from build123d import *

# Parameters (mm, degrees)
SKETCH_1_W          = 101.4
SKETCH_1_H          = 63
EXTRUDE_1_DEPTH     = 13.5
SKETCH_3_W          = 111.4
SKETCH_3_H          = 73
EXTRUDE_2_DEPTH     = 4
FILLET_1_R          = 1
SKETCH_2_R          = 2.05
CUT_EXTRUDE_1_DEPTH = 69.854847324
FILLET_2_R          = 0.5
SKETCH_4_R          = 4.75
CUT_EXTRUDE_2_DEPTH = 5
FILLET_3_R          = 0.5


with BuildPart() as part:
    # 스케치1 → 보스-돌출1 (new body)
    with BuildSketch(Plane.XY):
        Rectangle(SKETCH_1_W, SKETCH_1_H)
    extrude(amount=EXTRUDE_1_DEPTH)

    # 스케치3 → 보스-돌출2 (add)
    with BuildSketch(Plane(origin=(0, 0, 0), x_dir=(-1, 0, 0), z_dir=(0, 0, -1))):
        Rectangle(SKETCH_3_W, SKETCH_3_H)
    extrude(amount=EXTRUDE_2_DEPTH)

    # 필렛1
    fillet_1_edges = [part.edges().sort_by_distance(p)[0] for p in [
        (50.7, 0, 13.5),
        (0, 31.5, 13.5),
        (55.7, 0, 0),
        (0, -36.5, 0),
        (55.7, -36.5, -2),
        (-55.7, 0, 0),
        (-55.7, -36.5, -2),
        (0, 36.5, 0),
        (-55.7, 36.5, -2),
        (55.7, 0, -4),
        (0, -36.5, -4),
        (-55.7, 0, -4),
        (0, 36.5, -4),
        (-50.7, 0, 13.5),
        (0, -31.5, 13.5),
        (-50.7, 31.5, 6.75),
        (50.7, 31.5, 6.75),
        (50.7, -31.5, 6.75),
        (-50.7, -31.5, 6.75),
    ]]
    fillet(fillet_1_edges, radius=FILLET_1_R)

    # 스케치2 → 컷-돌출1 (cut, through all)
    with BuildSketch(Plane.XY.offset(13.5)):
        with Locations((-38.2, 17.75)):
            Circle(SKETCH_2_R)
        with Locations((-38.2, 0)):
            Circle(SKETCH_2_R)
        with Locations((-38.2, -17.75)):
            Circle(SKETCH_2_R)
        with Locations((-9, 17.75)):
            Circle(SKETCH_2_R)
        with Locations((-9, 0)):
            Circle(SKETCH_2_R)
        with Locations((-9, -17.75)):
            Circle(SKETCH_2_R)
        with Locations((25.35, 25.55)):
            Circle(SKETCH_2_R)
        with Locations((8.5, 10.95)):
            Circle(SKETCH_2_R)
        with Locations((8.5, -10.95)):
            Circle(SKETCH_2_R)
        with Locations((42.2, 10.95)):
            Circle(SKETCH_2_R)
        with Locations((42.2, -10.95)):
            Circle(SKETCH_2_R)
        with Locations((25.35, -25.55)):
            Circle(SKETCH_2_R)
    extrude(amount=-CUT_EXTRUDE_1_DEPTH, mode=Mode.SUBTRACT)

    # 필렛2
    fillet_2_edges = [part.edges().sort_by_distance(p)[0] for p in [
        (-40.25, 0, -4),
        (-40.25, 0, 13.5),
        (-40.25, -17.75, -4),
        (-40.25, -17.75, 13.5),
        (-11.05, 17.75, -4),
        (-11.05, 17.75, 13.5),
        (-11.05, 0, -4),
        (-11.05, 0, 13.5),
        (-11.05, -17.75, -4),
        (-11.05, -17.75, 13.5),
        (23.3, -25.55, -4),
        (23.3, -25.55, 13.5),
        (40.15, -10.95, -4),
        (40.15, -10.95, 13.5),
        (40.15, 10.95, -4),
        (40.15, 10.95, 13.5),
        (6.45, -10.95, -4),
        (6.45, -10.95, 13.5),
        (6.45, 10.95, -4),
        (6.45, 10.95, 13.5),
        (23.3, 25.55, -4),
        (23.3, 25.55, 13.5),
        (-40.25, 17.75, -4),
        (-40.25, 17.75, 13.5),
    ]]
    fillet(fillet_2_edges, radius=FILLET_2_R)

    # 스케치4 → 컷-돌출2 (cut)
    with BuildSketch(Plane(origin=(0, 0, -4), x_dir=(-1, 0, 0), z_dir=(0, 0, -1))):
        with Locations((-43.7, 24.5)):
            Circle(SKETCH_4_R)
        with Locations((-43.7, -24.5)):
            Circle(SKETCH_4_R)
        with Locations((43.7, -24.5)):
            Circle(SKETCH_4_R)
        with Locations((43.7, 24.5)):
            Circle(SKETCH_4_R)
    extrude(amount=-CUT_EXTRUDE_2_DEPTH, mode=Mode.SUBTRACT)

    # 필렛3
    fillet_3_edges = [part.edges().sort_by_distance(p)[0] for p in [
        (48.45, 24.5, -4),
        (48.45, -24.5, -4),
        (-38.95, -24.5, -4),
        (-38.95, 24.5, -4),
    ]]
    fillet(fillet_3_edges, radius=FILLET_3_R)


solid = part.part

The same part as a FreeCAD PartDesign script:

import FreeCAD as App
import Part
import Sketcher
from FreeCAD import Vector


def edges_at(feature, points):
    """Names of the edges that pass closest to the given points."""
    edges = feature.Shape.Edges
    near = lambda p: min(range(len(edges)), key=lambda i: edges[i].distToShape(Part.Vertex(*p))[0])
    return sorted({f"Edge{near(p) + 1}" for p in points})

doc = App.newDocument("Part")
params = doc.addObject("Spreadsheet::Sheet", "Params")
for row, (alias, value) in enumerate([
    ("sketch1_height", "63 mm"),
    ("sketch1_width", "101.4 mm"),
    ("pad1_length", "13.5 mm"),
    ("sketch2_height", "73 mm"),
    ("sketch2_width", "111.4 mm"),
    ("pad2_length", "4 mm"),
    ("fillet_radius", "1 mm"),
    ("sketch3_diameter", "4.1 mm"),
    ("fillet2_radius", "0.5 mm"),
    ("sketch4_diameter", "9.5 mm"),
    ("pocket2_length", "5 mm"),
    ("fillet3_radius", "0.5 mm"),
], start=1):
    params.set(f"A{row}", alias)
    params.set(f"B{row}", "=" + value)
    params.setAlias(f"B{row}", alias)

body = doc.addObject("PartDesign::Body", "Body")

sketch1 = body.newObject("Sketcher::SketchObject", "Sketch")
sketch1.AttachmentSupport = (doc.getObject("XY_Plane"), [""])
sketch1.MapMode = "FlatFace"
sketch1.addGeometry([
    Part.LineSegment(Vector(-50.7, 31.5, 0), Vector(-50.7, -31.5, 0)),
    Part.LineSegment(Vector(-50.7, -31.5, 0), Vector(50.7, -31.5, 0)),
    Part.LineSegment(Vector(50.7, -31.5, 0), Vector(50.7, 31.5, 0)),
    Part.LineSegment(Vector(50.7, 31.5, 0), Vector(-50.7, 31.5, 0)),
], False)
sketch1.addConstraint([
    Sketcher.Constraint("Coincident", 0, 2, 1, 1),
    Sketcher.Constraint("Coincident", 1, 2, 2, 1),
    Sketcher.Constraint("Coincident", 2, 2, 3, 1),
    Sketcher.Constraint("Coincident", 3, 2, 0, 1),
    Sketcher.Constraint("Vertical", 0),
    Sketcher.Constraint("Horizontal", 1),
    Sketcher.Constraint("Vertical", 2),
    Sketcher.Constraint("Horizontal", 3),
    Sketcher.Constraint("Symmetric", 0, 2, 2, 2, -1, 1),
    Sketcher.Constraint("DistanceY", 0, 2, 0, 1, 63.0),
    Sketcher.Constraint("DistanceX", 1, 1, 1, 2, 101.4),
])
sketch1.setExpression("Constraints[9]", "Params.sketch1_height")
sketch1.setExpression("Constraints[10]", "Params.sketch1_width")
pad1 = body.newObject("PartDesign::Pad", "Pad")
pad1.Profile = sketch1
pad1.setExpression("Length", "Params.pad1_length")

sketch2 = body.newObject("Sketcher::SketchObject", "Sketch001")
sketch2.AttachmentSupport = (doc.getObject("XY_Plane"), [""])
sketch2.MapMode = "FlatFace"
sketch2.addGeometry([
    Part.LineSegment(Vector(55.7, 36.5, 0), Vector(55.7, -36.5, 0)),
    Part.LineSegment(Vector(55.7, -36.5, 0), Vector(-55.7, -36.5, 0)),
    Part.LineSegment(Vector(-55.7, -36.5, 0), Vector(-55.7, 36.5, 0)),
    Part.LineSegment(Vector(-55.7, 36.5, 0), Vector(55.7, 36.5, 0)),
], False)
sketch2.addConstraint([
    Sketcher.Constraint("Coincident", 0, 2, 1, 1),
    Sketcher.Constraint("Coincident", 1, 2, 2, 1),
    Sketcher.Constraint("Coincident", 2, 2, 3, 1),
    Sketcher.Constraint("Coincident", 3, 2, 0, 1),
    Sketcher.Constraint("Vertical", 0),
    Sketcher.Constraint("Horizontal", 1),
    Sketcher.Constraint("Vertical", 2),
    Sketcher.Constraint("Horizontal", 3),
    Sketcher.Constraint("Symmetric", 0, 2, 2, 2, -1, 1),
    Sketcher.Constraint("DistanceY", 0, 2, 0, 1, 73.0),
    Sketcher.Constraint("DistanceX", 1, 2, 1, 1, 111.4),
])
sketch2.setExpression("Constraints[9]", "Params.sketch2_height")
sketch2.setExpression("Constraints[10]", "Params.sketch2_width")
pad2 = body.newObject("PartDesign::Pad", "Pad001")
pad2.Profile = sketch2
pad2.setExpression("Length", "Params.pad2_length")
pad2.Reversed = True
doc.recompute()

fillet = body.newObject("PartDesign::Fillet", "Fillet")
fillet.Base = (pad2, edges_at(pad2, [
    (50.7, 0, 13.5),
    (0, 31.5, 13.5),
    (55.7, 0, 0),
    (0, -36.5, 0),
    (55.7, -36.5, -2),
    (-55.7, 0, 0),
    (-55.7, -36.5, -2),
    (0, 36.5, 0),
    (-55.7, 36.5, -2),
    (55.7, 0, -4),
    (0, -36.5, -4),
    (-55.7, 0, -4),
    (0, 36.5, -4),
    (-50.7, 0, 13.5),
    (0, -31.5, 13.5),
    (-50.7, 31.5, 6.75),
    (50.7, 31.5, 6.75),
    (50.7, -31.5, 6.75),
    (-50.7, -31.5, 6.75),
]))
fillet.setExpression("Radius", "Params.fillet_radius")

sketch3 = body.newObject("Sketcher::SketchObject", "Sketch002")
sketch3.AttachmentSupport = (doc.getObject("XY_Plane"), [""])
sketch3.MapMode = "FlatFace"
sketch3.AttachmentOffset = App.Placement(Vector(0, 0, 13.5), App.Rotation())
sketch3.addGeometry([
    Part.Circle(Vector(-38.2, 17.75, 0), Vector(0, 0, 1), 2.05),
    Part.Circle(Vector(-38.2, 0, 0), Vector(0, 0, 1), 2.05),
    Part.Circle(Vector(-38.2, -17.75, 0), Vector(0, 0, 1), 2.05),
    Part.Circle(Vector(-9, 17.75, 0), Vector(0, 0, 1), 2.05),
    Part.Circle(Vector(-9, 0, 0), Vector(0, 0, 1), 2.05),
    Part.Circle(Vector(-9, -17.75, 0), Vector(0, 0, 1), 2.05),
    Part.Circle(Vector(25.35, 25.55, 0), Vector(0, 0, 1), 2.05),
    Part.Circle(Vector(8.5, 10.95, 0), Vector(0, 0, 1), 2.05),
    Part.Circle(Vector(8.5, -10.95, 0), Vector(0, 0, 1), 2.05),
    Part.Circle(Vector(42.2, 10.95, 0), Vector(0, 0, 1), 2.05),
    Part.Circle(Vector(42.2, -10.95, 0), Vector(0, 0, 1), 2.05),
    Part.Circle(Vector(25.35, -25.55, 0), Vector(0, 0, 1), 2.05),
], False)
sketch3.addConstraint([
    Sketcher.Constraint("Equal", 0, 1),
    Sketcher.Constraint("Equal", 1, 2),
    Sketcher.Constraint("Equal", 2, 3),
    Sketcher.Constraint("Equal", 3, 4),
    Sketcher.Constraint("Equal", 4, 5),
    Sketcher.Constraint("Equal", 5, 6),
    Sketcher.Constraint("Equal", 6, 7),
    Sketcher.Constraint("Equal", 7, 8),
    Sketcher.Constraint("Equal", 8, 9),
    Sketcher.Constraint("Equal", 9, 10),
    Sketcher.Constraint("Equal", 10, 11),
    Sketcher.Constraint("Symmetric", 0, 3, 2, 3, -1),
    Sketcher.Constraint("Symmetric", 3, 3, 5, 3, -1),
    Sketcher.Constraint("Symmetric", 7, 3, 8, 3, -1),
    Sketcher.Constraint("Symmetric", 9, 3, 10, 3, -1),
    Sketcher.Constraint("Symmetric", 6, 3, 11, 3, -1),
    Sketcher.Constraint("PointOnObject", 1, 3, -1),
    Sketcher.Constraint("PointOnObject", 4, 3, -1),
    Sketcher.Constraint("Horizontal", 0, 3, 3, 3),
    Sketcher.Constraint("Horizontal", 7, 3, 9, 3),
    Sketcher.Constraint("Vertical", 0, 3, 1, 3),
    Sketcher.Constraint("Vertical", 3, 3, 4, 3),
    Sketcher.Constraint("Diameter", 0, 4.1),
    Sketcher.Constraint("DistanceX", 3, 3, -1, 1, 9.0),
    Sketcher.Constraint("DistanceX", 0, 3, -1, 1, 38.2),
    Sketcher.Constraint("DistanceX", -1, 1, 7, 3, 8.5),
    Sketcher.Constraint("DistanceX", -1, 1, 9, 3, 42.2),
    Sketcher.Constraint("DistanceY", 2, 3, 0, 3, 35.5),
    Sketcher.Constraint("DistanceY", 3, 3, 6, 3, 7.8),
    Sketcher.Constraint("DistanceY", 7, 3, 3, 3, 6.8),
    Sketcher.Constraint("DistanceX", -1, 1, 6, 3, 25.35),
])
sketch3.setExpression("Constraints[22]", "Params.sketch3_diameter")
pocket1 = body.newObject("PartDesign::Pocket", "Pocket")
pocket1.Profile = sketch3
pocket1.Type = "ThroughAll"
doc.recompute()

fillet2 = body.newObject("PartDesign::Fillet", "Fillet001")
fillet2.Base = (pocket1, edges_at(pocket1, [
    (-40.25, 0, -4),
    (-40.25, 0, 13.5),
    (-40.25, -17.75, -4),
    (-40.25, -17.75, 13.5),
    (-11.05, 17.75, -4),
    (-11.05, 17.75, 13.5),
    (-11.05, 0, -4),
    (-11.05, 0, 13.5),
    (-11.05, -17.75, -4),
    (-11.05, -17.75, 13.5),
    (23.3, -25.55, -4),
    (23.3, -25.55, 13.5),
    (40.15, -10.95, -4),
    (40.15, -10.95, 13.5),
    (40.15, 10.95, -4),
    (40.15, 10.95, 13.5),
    (6.45, -10.95, -4),
    (6.45, -10.95, 13.5),
    (6.45, 10.95, -4),
    (6.45, 10.95, 13.5),
    (23.3, 25.55, -4),
    (23.3, 25.55, 13.5),
    (-40.25, 17.75, -4),
    (-40.25, 17.75, 13.5),
]))
fillet2.setExpression("Radius", "Params.fillet2_radius")

sketch4 = body.newObject("Sketcher::SketchObject", "Sketch003")
sketch4.AttachmentSupport = (doc.getObject("XY_Plane"), [""])
sketch4.MapMode = "FlatFace"
sketch4.AttachmentOffset = App.Placement(Vector(0, 0, -4), App.Rotation())
sketch4.addGeometry([
    Part.Circle(Vector(43.7, 24.5, 0), Vector(0, 0, 1), 4.75),
    Part.Circle(Vector(43.7, -24.5, 0), Vector(0, 0, 1), 4.75),
    Part.Circle(Vector(-43.7, -24.5, 0), Vector(0, 0, 1), 4.75),
    Part.Circle(Vector(-43.7, 24.5, 0), Vector(0, 0, 1), 4.75),
], False)
sketch4.addConstraint([
    Sketcher.Constraint("Equal", 0, 1),
    Sketcher.Constraint("Equal", 1, 2),
    Sketcher.Constraint("Equal", 2, 3),
    Sketcher.Constraint("Symmetric", 0, 3, 2, 3, -1, 1),
    Sketcher.Constraint("Symmetric", 1, 3, 3, 3, -1, 1),
    Sketcher.Constraint("Symmetric", 1, 3, 2, 3, -2),
    Sketcher.Constraint("Diameter", 0, 9.5),
    Sketcher.Constraint("DistanceY", 1, 3, 0, 3, 49.0),
    Sketcher.Constraint("DistanceX", -1, 1, 0, 3, 43.7),
])
sketch4.setExpression("Constraints[6]", "Params.sketch4_diameter")
pocket2 = body.newObject("PartDesign::Pocket", "Pocket001")
pocket2.Profile = sketch4
pocket2.setExpression("Length", "Params.pocket2_length")
pocket2.Reversed = True
doc.recompute()

fillet3 = body.newObject("PartDesign::Fillet", "Fillet002")
fillet3.Base = (pocket2, edges_at(pocket2, [
    (48.45, 24.5, -4),
    (48.45, -24.5, -4),
    (-38.95, -24.5, -4),
    (-38.95, 24.5, -4),
]))
fillet3.setExpression("Radius", "Params.fillet3_radius")

doc.recompute()
